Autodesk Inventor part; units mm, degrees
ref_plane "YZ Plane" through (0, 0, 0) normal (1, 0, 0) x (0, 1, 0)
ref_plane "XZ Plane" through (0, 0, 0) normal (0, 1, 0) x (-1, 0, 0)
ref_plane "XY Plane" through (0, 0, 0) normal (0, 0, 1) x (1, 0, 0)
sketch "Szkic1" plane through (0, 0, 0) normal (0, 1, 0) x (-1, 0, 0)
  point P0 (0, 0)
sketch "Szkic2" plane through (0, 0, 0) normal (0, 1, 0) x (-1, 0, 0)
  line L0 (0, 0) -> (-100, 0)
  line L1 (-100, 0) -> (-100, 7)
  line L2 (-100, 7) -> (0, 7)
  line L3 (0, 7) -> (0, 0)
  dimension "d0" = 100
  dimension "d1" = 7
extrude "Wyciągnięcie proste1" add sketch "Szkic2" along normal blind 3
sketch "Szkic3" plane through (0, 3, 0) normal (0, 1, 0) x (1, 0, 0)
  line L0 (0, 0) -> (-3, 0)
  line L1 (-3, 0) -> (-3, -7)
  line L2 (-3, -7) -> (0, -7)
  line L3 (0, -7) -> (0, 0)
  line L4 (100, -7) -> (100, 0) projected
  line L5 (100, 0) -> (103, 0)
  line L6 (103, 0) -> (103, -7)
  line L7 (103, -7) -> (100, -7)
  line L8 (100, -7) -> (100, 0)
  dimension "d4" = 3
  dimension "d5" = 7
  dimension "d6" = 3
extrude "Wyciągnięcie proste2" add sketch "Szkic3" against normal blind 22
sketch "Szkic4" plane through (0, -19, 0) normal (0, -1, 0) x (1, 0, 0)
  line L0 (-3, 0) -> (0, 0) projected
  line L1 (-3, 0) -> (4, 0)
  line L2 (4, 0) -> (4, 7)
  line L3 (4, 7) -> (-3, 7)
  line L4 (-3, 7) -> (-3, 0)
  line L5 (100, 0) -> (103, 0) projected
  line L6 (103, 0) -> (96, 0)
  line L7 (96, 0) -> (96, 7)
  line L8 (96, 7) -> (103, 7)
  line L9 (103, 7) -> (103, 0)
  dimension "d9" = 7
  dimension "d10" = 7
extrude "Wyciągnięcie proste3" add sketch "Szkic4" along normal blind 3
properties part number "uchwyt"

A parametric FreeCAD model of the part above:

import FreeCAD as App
import Part
import Sketcher
from FreeCAD import Vector


def add_polygon(sketch, points):
    """Adds a closed chain of lines whose ends are joined by coincident constraints."""
    first, n = sketch.GeometryCount, len(points)
    for a, b in zip(points, points[1:] + points[:1]):
        sketch.addGeometry(Part.LineSegment(App.Vector(*a, 0), App.Vector(*b, 0)), False)
    for i in range(n):
        sketch.addConstraint(Sketcher.Constraint("Coincident", first + i, 2, first + (i + 1) % n, 1))

doc = App.newDocument("Part")
body = doc.addObject("PartDesign::Body", "Body")

sketch1 = body.newObject("Sketcher::SketchObject", "Sketch")
sketch1.AttachmentSupport = (doc.getObject("XZ_Plane"), [""])
sketch1.MapMode = "FlatFace"
add_polygon(sketch1, [(100, 0), (0, 0), (0, 7), (100, 7)])
sketch1.addConstraint(Sketcher.Constraint("Horizontal", 0))
sketch1.addConstraint(Sketcher.Constraint("Vertical", 1))
sketch1.addConstraint(Sketcher.Constraint("Horizontal", 2))
sketch1.addConstraint(Sketcher.Constraint("Vertical", 3))
sketch1.addConstraint(Sketcher.Constraint("Coincident", 0, 2, -1, 1))
sketch1.addConstraint(Sketcher.Constraint("DistanceX", 0, 2, 0, 1, 100.0))
sketch1.addConstraint(Sketcher.Constraint("DistanceY", 1, 1, 1, 2, 7.0))
pad1 = body.newObject("PartDesign::Pad", "Pad")
pad1.Profile = sketch1
pad1.Length = 3
pad1.Reversed = True

sketch2 = body.newObject("Sketcher::SketchObject", "Sketch001")
sketch2.AttachmentSupport = (doc.getObject("XZ_Plane"), [""])
sketch2.MapMode = "FlatFace"
sketch2.AttachmentOffset = App.Placement(Vector(0, 0, -3), App.Rotation())
add_polygon(sketch2, [(0, 7), (0, 0), (-3, 0), (-3, 7)])
add_polygon(sketch2, [(100, 0), (100, 7), (103, 7), (103, 0)])
sketch2.addConstraint(Sketcher.Constraint("Vertical", 0))
sketch2.addConstraint(Sketcher.Constraint("Horizontal", 1))
sketch2.addConstraint(Sketcher.Constraint("Vertical", 2))
sketch2.addConstraint(Sketcher.Constraint("Horizontal", 3))
sketch2.addConstraint(Sketcher.Constraint("Vertical", 4))
sketch2.addConstraint(Sketcher.Constraint("Horizontal", 5))
sketch2.addConstraint(Sketcher.Constraint("Vertical", 6))
sketch2.addConstraint(Sketcher.Constraint("Horizontal", 7))
sketch2.addConstraint(Sketcher.Constraint("Coincident", 0, 2, -1, 1))
sketch2.addConstraint(Sketcher.Constraint("PointOnObject", 6, 2, -1))
sketch2.addConstraint(Sketcher.Constraint("Horizontal", 3, 2, 4, 2))
sketch2.addConstraint(Sketcher.Constraint("Equal", 3, 5))
sketch2.addConstraint(Sketcher.Constraint("DistanceX", 1, 2, 1, 1, 3.0))
sketch2.addConstraint(Sketcher.Constraint("DistanceY", 0, 2, 0, 1, 7.0))
sketch2.addConstraint(Sketcher.Constraint("DistanceX", -1, 1, 4, 2, 100.0))
pad2 = body.newObject("PartDesign::Pad", "Pad001")
pad2.Profile = sketch2
pad2.Length = 22

sketch3 = body.newObject("Sketcher::SketchObject", "Sketch002")
sketch3.AttachmentSupport = (doc.getObject("XZ_Plane"), [""])
sketch3.MapMode = "FlatFace"
sketch3.AttachmentOffset = App.Placement(Vector(0, 0, 19), App.Rotation())
add_polygon(sketch3, [(-3, 7), (-3, 0), (4, 0), (4, 7)])
add_polygon(sketch3, [(96, 0), (103, 0), (103, 7), (96, 7)])
sketch3.addConstraint(Sketcher.Constraint("Vertical", 0))
sketch3.addConstraint(Sketcher.Constraint("Horizontal", 1))
sketch3.addConstraint(Sketcher.Constraint("Vertical", 2))
sketch3.addConstraint(Sketcher.Constraint("Horizontal", 3))
sketch3.addConstraint(Sketcher.Constraint("Horizontal", 4))
sketch3.addConstraint(Sketcher.Constraint("Vertical", 5))
sketch3.addConstraint(Sketcher.Constraint("Horizontal", 6))
sketch3.addConstraint(Sketcher.Constraint("Vertical", 7))
sketch3.addConstraint(Sketcher.Constraint("PointOnObject", 0, 2, -1))
sketch3.addConstraint(Sketcher.Constraint("PointOnObject", 4, 2, -1))
sketch3.addConstraint(Sketcher.Constraint("Horizontal", 3, 2, 5, 2))
sketch3.addConstraint(Sketcher.Constraint("Equal", 3, 4))
sketch3.addConstraint(Sketcher.Constraint("Equal", 6, 0))
sketch3.addConstraint(Sketcher.Constraint("DistanceX", 1, 1, 1, 2, 7.0))
sketch3.addConstraint(Sketcher.Constraint("DistanceX", 0, 2, -1, 1, 3.0))
sketch3.addConstraint(Sketcher.Constraint("DistanceX", -1, 1, 4, 2, 103.0))
pad3 = body.newObject("PartDesign::Pad", "Pad002")
pad3.Profile = sketch3
pad3.Length = 3

doc.recompute()
